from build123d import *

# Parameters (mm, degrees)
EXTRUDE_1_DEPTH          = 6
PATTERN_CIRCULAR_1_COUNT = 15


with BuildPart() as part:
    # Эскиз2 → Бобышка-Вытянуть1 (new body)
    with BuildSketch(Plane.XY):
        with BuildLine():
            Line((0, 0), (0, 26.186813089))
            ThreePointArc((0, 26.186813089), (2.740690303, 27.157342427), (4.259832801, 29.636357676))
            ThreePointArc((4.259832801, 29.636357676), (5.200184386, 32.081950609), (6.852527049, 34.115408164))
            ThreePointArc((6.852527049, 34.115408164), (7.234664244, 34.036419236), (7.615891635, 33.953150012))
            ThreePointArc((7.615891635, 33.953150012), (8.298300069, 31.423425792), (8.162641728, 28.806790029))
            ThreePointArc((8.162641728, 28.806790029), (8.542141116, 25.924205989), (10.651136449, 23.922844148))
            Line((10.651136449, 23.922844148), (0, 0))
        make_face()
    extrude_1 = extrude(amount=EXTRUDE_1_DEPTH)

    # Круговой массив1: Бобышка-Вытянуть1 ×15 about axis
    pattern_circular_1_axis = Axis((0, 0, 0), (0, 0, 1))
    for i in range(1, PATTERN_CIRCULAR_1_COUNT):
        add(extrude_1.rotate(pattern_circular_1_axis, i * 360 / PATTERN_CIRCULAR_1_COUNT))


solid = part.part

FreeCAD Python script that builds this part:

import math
import FreeCAD as App
import Part
import Sketcher
Q = App.Units.Quantity

doc = App.newDocument("Part")
body = doc.addObject("PartDesign::Body", "Body")

# Sketch on XY plane
sketch1 = doc.addObject("Sketcher::SketchObject", "Sketch")
body.addObject(sketch1)
sketch1.AttachmentSupport = (doc.XY_Plane, [""])
sketch1.MapMode = "FlatFace"
sketch1.addGeometry([
    Part.LineSegment(App.Vector(0, 26.2, 0), App.Vector(0, 0, 0)),  # 0
    Part.LineSegment(App.Vector(0, 0, 0), App.Vector(10.7, 23.9, 0)),  # 1
    Part.ArcOfCircle(Part.Circle(App.Vector(12.4, 27.9, 0), App.Vector(0, 0, 1), 4.4), math.radians(168), math.radians(246)),  # 2
    Part.ArcOfCircle(Part.Circle(App.Vector(0, 30.5, 0), App.Vector(0, 0, 1), 8.3), math.radians(-12), math.radians(24)),  # 3
    Part.ArcOfCircle(Part.Circle(App.Vector(0, 0, 0), App.Vector(0, 0, 1), 34.8), math.radians(77.36), math.radians(78.64)),  # 4
    Part.ArcOfCircle(Part.Circle(App.Vector(12.4, 27.9, 0), App.Vector(0, 0, 1), 8.3), math.radians(132), math.radians(168)),  # 5
    Part.ArcOfCircle(Part.Circle(App.Vector(0, 30.5, 0), App.Vector(0, 0, 1), 4.4), math.radians(-90), math.radians(-12)),  # 6
], False)
sketch1.addConstraint([
    Sketcher.Constraint("Coincident", 0, 2, 1, 1),
    Sketcher.Constraint("Coincident", 1, 2, 2, 2),
    Sketcher.Constraint("Tangent", 2, 1, 3, 1),
    Sketcher.Constraint("Coincident", 3, 2, 4, 1),
    Sketcher.Constraint("Coincident", 4, 2, 5, 1),
    Sketcher.Constraint("Tangent", 5, 2, 6, 2),
    Sketcher.Constraint("Coincident", 6, 1, 0, 1),
    Sketcher.Constraint("Vertical", 0),
    Sketcher.Constraint("Coincident", 4, 3, -1, 1),
    Sketcher.Constraint("Coincident", 0, 2, -1, 1),
    Sketcher.Constraint("Coincident", 5, 3, 2, 3),
    Sketcher.Constraint("Coincident", 6, 3, 3, 3),
    Sketcher.Constraint("Equal", 3, 5),
    Sketcher.Constraint("PointOnObject", 3, 3, -2),
    Sketcher.Constraint("Angle", 1, Q("66 deg")),
    Sketcher.Constraint("Radius", 2, 4.355),
    Sketcher.Constraint("Radius", 3, 8.345),
    Sketcher.Constraint("Radius", 4, 34.796816),
    Sketcher.Constraint("DistanceY", 0, 2, 0, 1, 26.186813),
    Sketcher.Constraint("DistanceX", -1, 1, 2, 1, 8.162642),
])
pad1 = doc.addObject("PartDesign::Pad", "Pad")
body.addObject(pad1)
pad1.Profile = sketch1
pad1.Length = 6
doc.recompute()

polarpattern = doc.addObject("PartDesign::PolarPattern", "PolarPattern")
body.addObject(polarpattern)
polarpattern.Originals = [pad1]
polarpattern.Axis = (doc.Z_Axis, [""])
polarpattern.Angle = 360
polarpattern.Occurrences = 15
body.Tip = polarpattern

doc.recompute()
